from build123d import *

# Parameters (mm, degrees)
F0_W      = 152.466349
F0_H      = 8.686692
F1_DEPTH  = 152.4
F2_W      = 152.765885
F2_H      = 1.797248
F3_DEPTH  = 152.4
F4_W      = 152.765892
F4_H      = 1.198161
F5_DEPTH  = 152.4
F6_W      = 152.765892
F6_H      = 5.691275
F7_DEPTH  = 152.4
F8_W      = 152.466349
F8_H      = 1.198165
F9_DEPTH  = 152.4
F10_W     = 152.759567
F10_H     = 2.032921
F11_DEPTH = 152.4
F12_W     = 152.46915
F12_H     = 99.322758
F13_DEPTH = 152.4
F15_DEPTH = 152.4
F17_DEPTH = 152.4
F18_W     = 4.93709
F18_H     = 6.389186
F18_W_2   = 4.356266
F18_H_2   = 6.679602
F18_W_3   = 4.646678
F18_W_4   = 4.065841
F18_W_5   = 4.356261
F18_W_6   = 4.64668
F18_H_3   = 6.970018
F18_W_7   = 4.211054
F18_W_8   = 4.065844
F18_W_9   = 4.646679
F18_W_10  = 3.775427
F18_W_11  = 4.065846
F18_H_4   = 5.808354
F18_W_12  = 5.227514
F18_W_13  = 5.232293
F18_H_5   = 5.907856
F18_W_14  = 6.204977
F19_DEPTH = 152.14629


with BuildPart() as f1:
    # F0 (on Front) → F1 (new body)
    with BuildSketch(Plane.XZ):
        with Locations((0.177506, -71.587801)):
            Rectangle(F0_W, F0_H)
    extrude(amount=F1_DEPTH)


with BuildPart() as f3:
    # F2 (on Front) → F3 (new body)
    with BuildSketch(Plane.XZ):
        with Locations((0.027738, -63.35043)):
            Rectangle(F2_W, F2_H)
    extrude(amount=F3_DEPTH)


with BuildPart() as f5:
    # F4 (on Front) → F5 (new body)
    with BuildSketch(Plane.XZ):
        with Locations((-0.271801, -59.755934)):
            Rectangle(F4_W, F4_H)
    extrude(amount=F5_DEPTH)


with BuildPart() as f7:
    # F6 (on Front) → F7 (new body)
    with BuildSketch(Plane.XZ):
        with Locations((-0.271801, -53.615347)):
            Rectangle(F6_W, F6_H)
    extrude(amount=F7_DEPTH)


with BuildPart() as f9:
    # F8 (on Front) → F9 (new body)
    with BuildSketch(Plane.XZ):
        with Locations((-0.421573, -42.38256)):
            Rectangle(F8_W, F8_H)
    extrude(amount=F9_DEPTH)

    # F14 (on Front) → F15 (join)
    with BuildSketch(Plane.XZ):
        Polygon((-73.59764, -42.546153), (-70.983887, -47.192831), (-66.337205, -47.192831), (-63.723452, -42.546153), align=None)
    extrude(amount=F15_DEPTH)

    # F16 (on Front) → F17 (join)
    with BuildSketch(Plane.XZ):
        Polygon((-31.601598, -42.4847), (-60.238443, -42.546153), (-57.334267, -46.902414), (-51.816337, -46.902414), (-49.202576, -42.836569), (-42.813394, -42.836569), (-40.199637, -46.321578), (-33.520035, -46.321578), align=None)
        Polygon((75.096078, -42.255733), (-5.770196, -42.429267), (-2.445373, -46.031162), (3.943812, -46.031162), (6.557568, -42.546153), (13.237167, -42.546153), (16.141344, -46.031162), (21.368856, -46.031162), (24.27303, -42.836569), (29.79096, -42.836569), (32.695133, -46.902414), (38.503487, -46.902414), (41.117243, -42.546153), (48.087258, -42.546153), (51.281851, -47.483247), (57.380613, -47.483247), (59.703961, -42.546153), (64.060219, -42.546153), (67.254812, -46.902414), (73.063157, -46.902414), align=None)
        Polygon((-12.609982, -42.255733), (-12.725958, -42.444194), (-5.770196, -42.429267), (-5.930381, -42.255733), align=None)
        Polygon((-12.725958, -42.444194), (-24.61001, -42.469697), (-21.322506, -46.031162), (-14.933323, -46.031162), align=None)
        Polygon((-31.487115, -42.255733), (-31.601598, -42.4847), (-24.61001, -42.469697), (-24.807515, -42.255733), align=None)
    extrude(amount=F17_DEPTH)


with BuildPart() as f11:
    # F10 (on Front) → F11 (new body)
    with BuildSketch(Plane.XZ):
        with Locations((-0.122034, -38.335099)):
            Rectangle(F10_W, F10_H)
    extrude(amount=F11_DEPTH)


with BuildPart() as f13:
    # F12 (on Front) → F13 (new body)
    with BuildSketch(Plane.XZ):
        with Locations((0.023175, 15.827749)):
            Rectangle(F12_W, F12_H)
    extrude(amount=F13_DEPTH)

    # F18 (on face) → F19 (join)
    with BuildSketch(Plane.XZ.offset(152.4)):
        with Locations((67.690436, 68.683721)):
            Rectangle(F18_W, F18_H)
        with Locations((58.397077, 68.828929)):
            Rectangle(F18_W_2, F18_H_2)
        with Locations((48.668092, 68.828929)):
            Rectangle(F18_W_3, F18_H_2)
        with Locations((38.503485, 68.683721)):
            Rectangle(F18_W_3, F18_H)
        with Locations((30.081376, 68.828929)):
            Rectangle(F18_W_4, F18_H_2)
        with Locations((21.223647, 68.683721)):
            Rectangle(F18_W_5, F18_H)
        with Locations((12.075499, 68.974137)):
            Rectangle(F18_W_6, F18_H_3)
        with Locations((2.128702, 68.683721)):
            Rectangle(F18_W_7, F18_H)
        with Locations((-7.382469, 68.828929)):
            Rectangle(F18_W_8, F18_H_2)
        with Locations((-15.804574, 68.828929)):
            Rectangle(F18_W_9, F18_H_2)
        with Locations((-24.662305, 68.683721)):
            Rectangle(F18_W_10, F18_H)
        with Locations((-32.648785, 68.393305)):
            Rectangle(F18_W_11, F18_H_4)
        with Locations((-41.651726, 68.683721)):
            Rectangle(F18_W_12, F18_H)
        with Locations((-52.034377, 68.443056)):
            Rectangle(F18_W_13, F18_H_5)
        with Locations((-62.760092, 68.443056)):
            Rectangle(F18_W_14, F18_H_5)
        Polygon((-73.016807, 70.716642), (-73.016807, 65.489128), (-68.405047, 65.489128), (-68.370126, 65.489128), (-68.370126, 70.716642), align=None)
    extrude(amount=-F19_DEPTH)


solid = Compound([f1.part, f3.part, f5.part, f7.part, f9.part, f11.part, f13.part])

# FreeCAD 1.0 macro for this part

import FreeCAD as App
import Part
import Sketcher
from FreeCAD import Vector
Q = App.Units.Quantity


def add_polygon(sketch, points):
    """Adds a closed chain of lines whose ends are joined by coincident constraints."""
    first, n = sketch.GeometryCount, len(points)
    for a, b in zip(points, points[1:] + points[:1]):
        sketch.addGeometry(Part.LineSegment(App.Vector(*a, 0), App.Vector(*b, 0)), False)
    for i in range(n):
        sketch.addConstraint(Sketcher.Constraint("Coincident", first + i, 2, first + (i + 1) % n, 1))

doc = App.newDocument("Part")
body = doc.addObject("PartDesign::Body", "Body")

# Sketch on XZ plane
sketch1 = doc.addObject("Sketcher::SketchObject", "Sketch")
body.addObject(sketch1)
sketch1.AttachmentSupport = (doc.XZ_Plane, [""])
sketch1.MapMode = "FlatFace"
add_polygon(sketch1, [(-76.055668, -67.244455), (-76.055668, -75.931147), (76.41068, -75.931147), (76.41068, -67.244455)])  # lines 0-3
sketch1.addConstraint(Sketcher.Constraint("Vertical", 0))
sketch1.addConstraint(Sketcher.Constraint("Horizontal", 1))
sketch1.addConstraint(Sketcher.Constraint("Vertical", 2))
sketch1.addConstraint(Sketcher.Constraint("Horizontal", 3))
sketch1.addConstraint(Sketcher.Constraint("DistanceX", 1, 1, 1, 2, Q("152.466349 mm")))
sketch1.addConstraint(Sketcher.Constraint("DistanceY", 0, 2, 0, 1, Q("8.686692 mm")))
sketch1.addConstraint(Sketcher.Constraint("DistanceX", 0, 2, -1, 1, Q("76.055668 mm")))
sketch1.addConstraint(Sketcher.Constraint("DistanceY", 0, 2, -1, 1, Q("75.931147 mm")))
pad1 = doc.addObject("PartDesign::Pad", "Pad")
body.addObject(pad1)
pad1.Profile = sketch1
pad1.Length = Q("6 in")
body2 = doc.addObject("PartDesign::Body", "Body001")

# Sketch on XZ plane
sketch2 = doc.addObject("Sketcher::SketchObject", "Sketch001")
body2.addObject(sketch2)
sketch2.AttachmentSupport = (doc.getObject("XZ_Plane001"), [""])
sketch2.MapMode = "FlatFace"
add_polygon(sketch2, [(-76.355204, -62.451806), (-76.355204, -64.249054), (76.41068, -64.249054), (76.41068, -62.451806)])  # lines 0-3
sketch2.addConstraint(Sketcher.Constraint("Vertical", 0))
sketch2.addConstraint(Sketcher.Constraint("Horizontal", 1))
sketch2.addConstraint(Sketcher.Constraint("Vertical", 2))
sketch2.addConstraint(Sketcher.Constraint("Horizontal", 3))
sketch2.addConstraint(Sketcher.Constraint("DistanceY", 0, 2, 0, 1, Q("1.797248 mm")))
sketch2.addConstraint(Sketcher.Constraint("DistanceX", 1, 1, 1, 2, Q("152.765885 mm")))
sketch2.addConstraint(Sketcher.Constraint("DistanceX", -1, 1, 1, 2, Q("76.41068 mm")))
sketch2.addConstraint(Sketcher.Constraint("DistanceY", 0, 2, -1, 1, Q("64.249054 mm")))
pad2 = doc.addObject("PartDesign::Pad", "Pad001")
body2.addObject(pad2)
pad2.Profile = sketch2
pad2.Length = Q("6 in")
body3 = doc.addObject("PartDesign::Body", "Body002")

# Sketch on XZ plane
sketch3 = doc.addObject("Sketcher::SketchObject", "Sketch002")
body3.addObject(sketch3)
sketch3.AttachmentSupport = (doc.getObject("XZ_Plane002"), [""])
sketch3.MapMode = "FlatFace"
add_polygon(sketch3, [(-76.654747, -59.156853), (-76.654747, -60.355015), (76.111145, -60.355015), (76.111145, -59.156853)])  # lines 0-3
sketch3.addConstraint(Sketcher.Constraint("Vertical", 0))
sketch3.addConstraint(Sketcher.Constraint("Horizontal", 1))
sketch3.addConstraint(Sketcher.Constraint("Vertical", 2))
sketch3.addConstraint(Sketcher.Constraint("Horizontal", 3))
sketch3.addConstraint(Sketcher.Constraint("DistanceX", 1, 1, 1, 2, Q("152.765892 mm")))
sketch3.addConstraint(Sketcher.Constraint("DistanceY", 0, 2, 0, 1, Q("1.198161 mm")))
sketch3.addConstraint(Sketcher.Constraint("DistanceX", 0, 2, -1, 1, Q("76.654747 mm")))
sketch3.addConstraint(Sketcher.Constraint("DistanceY", 0, 2, -1, 1, Q("60.355015 mm")))
pad3 = doc.addObject("PartDesign::Pad", "Pad002")
body3.addObject(pad3)
pad3.Profile = sketch3
pad3.Length = Q("6 in")
body4 = doc.addObject("PartDesign::Body", "Body003")

# Sketch on XZ plane
sketch4 = doc.addObject("Sketcher::SketchObject", "Sketch003")
body4.addObject(sketch4)
sketch4.AttachmentSupport = (doc.getObject("XZ_Plane003"), [""])
sketch4.MapMode = "FlatFace"
add_polygon(sketch4, [(-76.654747, -50.769709), (-76.654747, -56.460985), (76.111145, -56.460985), (76.111145, -50.769709)])  # lines 0-3
sketch4.addConstraint(Sketcher.Constraint("Vertical", 0))
sketch4.addConstraint(Sketcher.Constraint("Horizontal", 1))
sketch4.addConstraint(Sketcher.Constraint("Vertical", 2))
sketch4.addConstraint(Sketcher.Constraint("Horizontal", 3))
sketch4.addConstraint(Sketcher.Constraint("DistanceX", 1, 1, 1, 2, Q("152.765892 mm")))
sketch4.addConstraint(Sketcher.Constraint("DistanceY", 0, 2, 0, 1, Q("5.691275 mm")))
sketch4.addConstraint(Sketcher.Constraint("DistanceY", 2, 2, -1, 1, Q("50.769709 mm")))
sketch4.addConstraint(Sketcher.Constraint("DistanceX", 0, 2, -1, 1, Q("76.654747 mm")))
pad4 = doc.addObject("PartDesign::Pad", "Pad003")
body4.addObject(pad4)
pad4.Profile = sketch4
pad4.Length = Q("6 in")
body5 = doc.addObject("PartDesign::Body", "Body004")

# Sketch on XZ plane
sketch5 = doc.addObject("Sketcher::SketchObject", "Sketch004")
body5.addObject(sketch5)
sketch5.AttachmentSupport = (doc.getObject("XZ_Plane004"), [""])
sketch5.MapMode = "FlatFace"
add_polygon(sketch5, [(-76.654747, -41.783477), (-76.654747, -42.981642), (75.811601, -42.981642), (75.811601, -41.783477)])  # lines 0-3
sketch5.addConstraint(Sketcher.Constraint("Vertical", 0))
sketch5.addConstraint(Sketcher.Constraint("Horizontal", 1))
sketch5.addConstraint(Sketcher.Constraint("Vertical", 2))
sketch5.addConstraint(Sketcher.Constraint("Horizontal", 3))
sketch5.addConstraint(Sketcher.Constraint("DistanceX", 1, 1, 1, 2, Q("152.466349 mm")))
sketch5.addConstraint(Sketcher.Constraint("DistanceX", -1, 1, 1, 2, Q("75.811601 mm")))
sketch5.addConstraint(Sketcher.Constraint("DistanceY", 0, 2, 0, 1, Q("1.198165 mm")))
sketch5.addConstraint(Sketcher.Constraint("DistanceY", 0, 2, -1, 1, Q("42.981642 mm")))
pad5 = doc.addObject("PartDesign::Pad", "Pad004")
body5.addObject(pad5)
pad5.Profile = sketch5
pad5.Length = Q("6 in")

# Sketch on XZ plane
sketch6 = doc.addObject("Sketcher::SketchObject", "Sketch005")
body5.addObject(sketch6)
sketch6.AttachmentSupport = (doc.getObject("XZ_Plane004"), [""])
sketch6.MapMode = "FlatFace"
add_polygon(sketch6, [(-73.59764, -42.546153), (-70.983887, -47.192831), (-66.337205, -47.192831), (-63.723452, -42.546153)])  # lines 0-3
sketch6.addConstraint(Sketcher.Constraint("Horizontal", 1))
sketch6.addConstraint(Sketcher.Constraint("Horizontal", 3))
sketch6.addConstraint(Sketcher.Constraint("Equal", 0, 2))
sketch6.addConstraint(Sketcher.Constraint("DistanceX", 1, 1, 1, 2, Q("4.646682 mm")))
sketch6.addConstraint(Sketcher.Constraint("DistanceX", 3, 2, 3, 1, Q("9.874188 mm")))
sketch6.addConstraint(Sketcher.Constraint("DistanceY", 0, 2, -1, 1, Q("47.192831 mm")))
sketch6.addConstraint(Sketcher.Constraint("DistanceX", 3, 2, -1, 1, Q("73.59764 mm")))
sketch6.addConstraint(Sketcher.Constraint("DistanceY", 1, 2, 2, 2, Q("4.646678 mm")))
pad6 = doc.addObject("PartDesign::Pad", "Pad005")
body5.addObject(pad6)
pad6.Profile = sketch6
pad6.Length = Q("6 in")

# Sketch on XZ plane
sketch7 = doc.addObject("Sketcher::SketchObject", "Sketch006")
body5.addObject(sketch7)
sketch7.AttachmentSupport = (doc.getObject("XZ_Plane004"), [""])
sketch7.MapMode = "FlatFace"
add_polygon(sketch7, [(-31.601598, -42.4847), (-60.238443, -42.546153), (-57.334267, -46.902414), (-51.816337, -46.902414), (-49.202576, -42.836569), (-42.813394, -42.836569), (-40.199637, -46.321578), (-33.520035, -46.321578)])  # lines 0-7
add_polygon(sketch7, [(75.096078, -42.255733), (-5.770196, -42.429267), (-2.445373, -46.031162), (3.943812, -46.031162), (6.557568, -42.546153), (13.237167, -42.546153), (16.141344, -46.031162), (21.368856, -46.031162), (24.27303, -42.836569), (29.79096, -42.836569), (32.695133, -46.902414), (38.503487, -46.902414), (41.117243, -42.546153), (48.087258, -42.546153), (51.281851, -47.483247), (57.380613, -47.483247), (59.703961, -42.546153), (64.060219, -42.546153), (67.254812, -46.902414), (73.063157, -46.902414)])  # lines 8-27
add_polygon(sketch7, [(-12.609982, -42.255733), (-12.725958, -42.444194), (-5.770196, -42.429267), (-5.930381, -42.255733)])  # lines 28-31
add_polygon(sketch7, [(-12.725958, -42.444194), (-24.61001, -42.469697), (-21.322506, -46.031162), (-14.933323, -46.031162)])  # lines 32-35
add_polygon(sketch7, [(-31.487115, -42.255733), (-31.601598, -42.4847), (-24.61001, -42.469697), (-24.807515, -42.255733)])  # lines 36-39
sketch7.addConstraint(Sketcher.Constraint("Horizontal", 2))
sketch7.addConstraint(Sketcher.Constraint("Horizontal", 4))
sketch7.addConstraint(Sketcher.Constraint("Horizontal", 6))
sketch7.addConstraint(Sketcher.Constraint("Horizontal", 10))
sketch7.addConstraint(Sketcher.Constraint("Horizontal", 12))
sketch7.addConstraint(Sketcher.Constraint("Horizontal", 14))
sketch7.addConstraint(Sketcher.Constraint("Horizontal", 16))
sketch7.addConstraint(Sketcher.Constraint("Horizontal", 18))
sketch7.addConstraint(Sketcher.Constraint("Horizontal", 20))
sketch7.addConstraint(Sketcher.Constraint("Horizontal", 22))
sketch7.addConstraint(Sketcher.Constraint("Horizontal", 24))
sketch7.addConstraint(Sketcher.Constraint("Horizontal", 26))
sketch7.addConstraint(Sketcher.Constraint("Horizontal", 31))
sketch7.addConstraint(Sketcher.Constraint("Horizontal", 34))
sketch7.addConstraint(Sketcher.Constraint("Horizontal", 39))
sketch7.addConstraint(Sketcher.Constraint("Coincident", 29, 2, 8, 2))
sketch7.addConstraint(Sketcher.Constraint("Coincident", 35, 2, 28, 2))
sketch7.addConstraint(Sketcher.Constraint("Coincident", 36, 2, 7, 2))
sketch7.addConstraint(Sketcher.Constraint("Coincident", 37, 2, 32, 2))
sketch7.addConstraint(Sketcher.Constraint("DistanceX", 12, 1, 12, 2, Q("6.679599 mm")))
sketch7.addConstraint(Sketcher.Constraint("DistanceX", 31, 2, 31, 1, Q("6.679601 mm")))
sketch7.addConstraint(Sketcher.Constraint("DistanceX", 39, 2, 39, 1, Q("6.6796 mm")))
sketch7.addConstraint(Sketcher.Constraint("DistanceX", 2, 1, 2, 2, Q("5.51793 mm")))
sketch7.addConstraint(Sketcher.Constraint("DistanceX", 4, 1, 4, 2, Q("6.389182 mm")))
sketch7.addConstraint(Sketcher.Constraint("DistanceX", 16, 1, 16, 2, Q("5.51793 mm")))
sketch7.addConstraint(Sketcher.Constraint("DistanceX", 22, 1, 22, 2, Q("6.098762 mm")))
sketch7.addConstraint(Sketcher.Constraint("DistanceX", 24, 1, 24, 2, Q("4.356258 mm")))
sketch7.addConstraint(Sketcher.Constraint("DistanceY", 7, 2, -1, 1, Q("42.4847 mm")))
sketch7.addConstraint(Sketcher.Constraint("DistanceX", 2, 2, 5, 2, Q("11.6167 mm")))
sketch7.addConstraint(Sketcher.Constraint("DistanceX", 2, 2, 6, 2, Q("18.296302 mm")))
sketch7.addConstraint(Sketcher.Constraint("DistanceX", 7, 2, 8, 2, Q("25.831402 mm")))
sketch7.addConstraint(Sketcher.Constraint("DistanceX", 4, 2, 8, 2, Q("37.043198 mm")))
sketch7.addConstraint(Sketcher.Constraint("DistanceY", 4, 2, 8, 2, Q("0.407302 mm")))
sketch7.addConstraint(Sketcher.Constraint("DistanceX", 16, 2, 20, 2, Q("18.296298 mm")))
sketch7.addConstraint(Sketcher.Constraint("DistanceX", 22, 2, 25, 2, Q("9.874199 mm")))
sketch7.addConstraint(Sketcher.Constraint("Distance", 0, Q("28.636911 mm")))
sketch7.addConstraint(Sketcher.Constraint("Distance", 5, Q("4.356261 mm")))
sketch7.addConstraint(Sketcher.Constraint("Distance", 7, Q("4.289759 mm")))
sketch7.addConstraint(Sketcher.Constraint("Distance", 8, Q("80.86646 mm")))
sketch7.addConstraint(Sketcher.Constraint("Distance", 11, Q("4.356261 mm")))
sketch7.addConstraint(Sketcher.Constraint("Distance", 17, Q("4.99653 mm")))
sketch7.addConstraint(Sketcher.Constraint("Distance", 19, Q("5.080229 mm")))
sketch7.addConstraint(Sketcher.Constraint("Distance", 23, Q("5.45645 mm")))
sketch7.addConstraint(Sketcher.Constraint("Distance", 29, Q("6.955778 mm")))
sketch7.addConstraint(Sketcher.Constraint("Distance", 32, Q("11.884079 mm")))
sketch7.addConstraint(Sketcher.Constraint("DistanceX", 10, 1, 10, 2, Q("6.389185 mm")))
sketch7.addConstraint(Sketcher.Constraint("DistanceX", 14, 1, 14, 2, Q("5.227512 mm")))
sketch7.addConstraint(Sketcher.Constraint("DistanceX", 18, 1, 18, 2, Q("5.808354 mm")))
sketch7.addConstraint(Sketcher.Constraint("DistanceX", 20, 1, 20, 2, Q("6.970015 mm")))
sketch7.addConstraint(Sketcher.Constraint("DistanceX", 26, 1, 26, 2, Q("5.808345 mm")))
sketch7.addConstraint(Sketcher.Constraint("DistanceX", 34, 1, 34, 2, Q("6.389183 mm")))
sketch7.addConstraint(Sketcher.Constraint("DistanceY", 3, 2, -1, 1, Q("42.836569 mm")))
sketch7.addConstraint(Sketcher.Constraint("DistanceX", -1, 1, 10, 2, Q("3.943812 mm")))
sketch7.addConstraint(Sketcher.Constraint("DistanceX", -1, 1, 15, 2, Q("24.27303 mm")))
sketch7.addConstraint(Sketcher.Constraint("DistanceY", 15, 2, -1, 1, Q("42.836569 mm")))
sketch7.addConstraint(Sketcher.Constraint("DistanceX", -1, 1, 21, 2, Q("51.281851 mm")))
sketch7.addConstraint(Sketcher.Constraint("DistanceX", -1, 1, 23, 2, Q("59.703961 mm")))
sketch7.addConstraint(Sketcher.Constraint("DistanceX", -1, 1, 27, 2, Q("75.096078 mm")))
sketch7.addConstraint(Sketcher.Constraint("DistanceX", 30, 2, -1, 1, Q("5.930381 mm")))
sketch7.addConstraint(Sketcher.Constraint("DistanceY", 1, 2, 0, 2, Q("4.356261 mm")))
sketch7.addConstraint(Sketcher.Constraint("DistanceY", 10, 2, 11, 2, Q("3.485009 mm")))
sketch7.addConstraint(Sketcher.Constraint("DistanceY", 13, 2, 12, 2, Q("3.485009 mm")))
sketch7.addConstraint(Sketcher.Constraint("DistanceX", 8, 2, 13, 2, Q("21.91154 mm")))
sketch7.addConstraint(Sketcher.Constraint("DistanceY", 17, 2, 14, 2, Q("0.871252 mm")))
sketch7.addConstraint(Sketcher.Constraint("DistanceX", 13, 2, 17, 2, Q("16.553789 mm")))
sketch7.addConstraint(Sketcher.Constraint("DistanceY", 21, 2, 16, 2, Q("4.646678 mm")))
sketch7.addConstraint(Sketcher.Constraint("DistanceY", 25, 2, 24, 2, Q("4.356261 mm")))
sketch7.addConstraint(Sketcher.Constraint("DistanceY", 26, 2, 27, 2, Q("4.646681 mm")))
sketch7.addConstraint(Sketcher.Constraint("DistanceY", 11, 2, 28, 2, Q("0.101959 mm")))
sketch7.addConstraint(Sketcher.Constraint("DistanceY", 9, 2, 30, 2, Q("3.775429 mm")))
sketch7.addConstraint(Sketcher.Constraint("DistanceY", 6, 2, 32, 2, Q("3.851881 mm")))
sketch7.addConstraint(Sketcher.Constraint("DistanceY", 33, 2, 31, 2, Q("3.775429 mm")))
sketch7.addConstraint(Sketcher.Constraint("DistanceX", 7, 2, 33, 2, Q("10.279092 mm")))
sketch7.addConstraint(Sketcher.Constraint("DistanceX", 38, 2, 33, 2, Q("3.485009 mm")))
sketch7.addConstraint(Sketcher.Constraint("DistanceY", 33, 2, 38, 2, Q("3.775429 mm")))
sketch7.addConstraint(Sketcher.Constraint("Distance", 3, Q("4.833512 mm")))
pad7 = doc.addObject("PartDesign::Pad", "Pad006")
body5.addObject(pad7)
pad7.Profile = sketch7
pad7.Length = Q("6 in")
body6 = doc.addObject("PartDesign::Body", "Body005")

# Sketch on XZ plane
sketch8 = doc.addObject("Sketcher::SketchObject", "Sketch007")
body6.addObject(sketch8)
sketch8.AttachmentSupport = (doc.getObject("XZ_Plane005"), [""])
sketch8.MapMode = "FlatFace"
add_polygon(sketch8, [(-76.501818, -37.318638), (-76.501818, -39.35156), (76.25775, -39.35156), (76.25775, -37.318638)])  # lines 0-3
sketch8.addConstraint(Sketcher.Constraint("Vertical", 0))
sketch8.addConstraint(Sketcher.Constraint("Horizontal", 1))
sketch8.addConstraint(Sketcher.Constraint("Vertical", 2))
sketch8.addConstraint(Sketcher.Constraint("Horizontal", 3))
sketch8.addConstraint(Sketcher.Constraint("DistanceY", 0, 2, 0, 1, Q("2.032921 mm")))
sketch8.addConstraint(Sketcher.Constraint("DistanceX", 1, 1, 1, 2, Q("152.759567 mm")))
sketch8.addConstraint(Sketcher.Constraint("DistanceY", 0, 2, -1, 1, Q("39.35156 mm")))
sketch8.addConstraint(Sketcher.Constraint("DistanceX", -1, 1, 1, 2, Q("76.25775 mm")))
pad8 = doc.addObject("PartDesign::Pad", "Pad007")
body6.addObject(pad8)
pad8.Profile = sketch8
pad8.Length = Q("6 in")
body7 = doc.addObject("PartDesign::Body", "Body006")

# Sketch on XZ plane
sketch9 = doc.addObject("Sketcher::SketchObject", "Sketch008")
body7.addObject(sketch9)
sketch9.AttachmentSupport = (doc.getObject("XZ_Plane006"), [""])
sketch9.MapMode = "FlatFace"
add_polygon(sketch9, [(-76.2114, 65.489128), (-76.2114, -33.83363), (76.25775, -33.83363), (76.25775, 65.489128)])  # lines 0-3
sketch9.addConstraint(Sketcher.Constraint("Vertical", 0))
sketch9.addConstraint(Sketcher.Constraint("Horizontal", 1))
sketch9.addConstraint(Sketcher.Constraint("Vertical", 2))
sketch9.addConstraint(Sketcher.Constraint("Horizontal", 3))
sketch9.addConstraint(Sketcher.Constraint("DistanceX", 1, 1, 1, 2, Q("152.46915 mm")))
sketch9.addConstraint(Sketcher.Constraint("DistanceX", 0, 2, -1, 1, Q("76.2114 mm")))
sketch9.addConstraint(Sketcher.Constraint("DistanceY", 0, 2, 0, 1, Q("99.322758 mm")))
sketch9.addConstraint(Sketcher.Constraint("DistanceY", 0, 2, -1, 1, Q("33.83363 mm")))
pad9 = doc.addObject("PartDesign::Pad", "Pad008")
body7.addObject(pad9)
pad9.Profile = sketch9
pad9.Length = Q("6 in")

# Sketch on XZ plane
sketch10 = doc.addObject("Sketcher::SketchObject", "Sketch009")
body7.addObject(sketch10)
sketch10.AttachmentSupport = (doc.getObject("XZ_Plane006"), [""])
sketch10.MapMode = "FlatFace"
sketch10.AttachmentOffset = App.Placement(Vector(0, 0, 6 * 25.4), App.Rotation())
add_polygon(sketch10, [(65.221891, 71.878314), (65.221891, 65.489128), (70.158981, 65.489128), (70.158981, 71.878314)])  # lines 0-3
add_polygon(sketch10, [(56.218944, 72.16873), (56.218944, 65.489128), (60.57521, 65.489128), (60.57521, 72.16873)])  # lines 4-7
add_polygon(sketch10, [(46.344753, 72.16873), (46.344753, 65.489128), (50.991431, 65.489128), (50.991431, 72.16873)])  # lines 8-11
add_polygon(sketch10, [(36.180146, 71.878314), (36.180146, 65.489128), (40.826824, 65.489128), (40.826824, 71.878314)])  # lines 12-15
add_polygon(sketch10, [(28.048455, 72.16873), (28.048455, 65.489128), (32.114297, 65.489128), (32.114297, 72.16873)])  # lines 16-19
add_polygon(sketch10, [(19.045517, 71.878314), (19.045517, 65.489128), (23.401778, 65.489128), (23.401778, 71.878314)])  # lines 20-23
add_polygon(sketch10, [(9.752159, 72.459146), (9.752159, 65.489128), (14.398839, 65.489128), (14.398839, 72.459146)])  # lines 24-27
add_polygon(sketch10, [(0.023175, 71.878314), (0.023175, 65.489128), (4.234229, 65.489128), (4.234229, 71.878314)])  # lines 28-31
add_polygon(sketch10, [(-9.415391, 72.16873), (-9.415391, 65.489128), (-5.349547, 65.489128), (-5.349547, 72.16873)])  # lines 32-35
add_polygon(sketch10, [(-18.127913, 72.16873), (-18.127913, 65.489128), (-13.481234, 65.489128), (-13.481234, 72.16873)])  # lines 36-39
add_polygon(sketch10, [(-26.550019, 71.878314), (-26.550019, 65.489128), (-22.774591, 65.489128), (-22.774591, 71.878314)])  # lines 40-43
add_polygon(sketch10, [(-34.681708, 71.297482), (-34.681708, 65.489128), (-30.615862, 65.489128), (-30.615862, 71.297482)])  # lines 44-47
add_polygon(sketch10, [(-44.265483, 71.878314), (-44.265483, 65.489128), (-39.037969, 65.489128), (-39.037969, 71.878314)])  # lines 48-51
add_polygon(sketch10, [(-54.650523, 71.396984), (-54.650523, 65.489128), (-49.41823, 65.489128), (-49.41823, 71.396984)])  # lines 52-55
add_polygon(sketch10, [(-65.862581, 71.396984), (-65.862581, 65.489128), (-59.657604, 65.489128), (-59.657604, 71.396984)])  # lines 56-59
add_polygon(sketch10, [(-73.016807, 70.716642), (-73.016807, 65.489128), (-68.370126, 65.489128), (-68.370126, 70.716642)])  # lines 60-63
sketch10.addConstraint(Sketcher.Constraint("Vertical", 0))
sketch10.addConstraint(Sketcher.Constraint("Horizontal", 1))
sketch10.addConstraint(Sketcher.Constraint("Vertical", 2))
sketch10.addConstraint(Sketcher.Constraint("Horizontal", 3))
sketch10.addConstraint(Sketcher.Constraint("Vertical", 4))
sketch10.addConstraint(Sketcher.Constraint("Horizontal", 5))
sketch10.addConstraint(Sketcher.Constraint("Vertical", 6))
sketch10.addConstraint(Sketcher.Constraint("Horizontal", 7))
sketch10.addConstraint(Sketcher.Constraint("Vertical", 8))
sketch10.addConstraint(Sketcher.Constraint("Horizontal", 9))
sketch10.addConstraint(Sketcher.Constraint("Vertical", 10))
sketch10.addConstraint(Sketcher.Constraint("Horizontal", 11))
sketch10.addConstraint(Sketcher.Constraint("Vertical", 12))
sketch10.addConstraint(Sketcher.Constraint("Horizontal", 13))
sketch10.addConstraint(Sketcher.Constraint("Vertical", 14))
sketch10.addConstraint(Sketcher.Constraint("Horizontal", 15))
sketch10.addConstraint(Sketcher.Constraint("Vertical", 16))
sketch10.addConstraint(Sketcher.Constraint("Horizontal", 17))
sketch10.addConstraint(Sketcher.Constraint("Vertical", 18))
sketch10.addConstraint(Sketcher.Constraint("Horizontal", 19))
sketch10.addConstraint(Sketcher.Constraint("Vertical", 20))
sketch10.addConstraint(Sketcher.Constraint("Horizontal", 21))
sketch10.addConstraint(Sketcher.Constraint("Vertical", 22))
sketch10.addConstraint(Sketcher.Constraint("Horizontal", 23))
sketch10.addConstraint(Sketcher.Constraint("Vertical", 24))
sketch10.addConstraint(Sketcher.Constraint("Horizontal", 25))
sketch10.addConstraint(Sketcher.Constraint("Vertical", 26))
sketch10.addConstraint(Sketcher.Constraint("Horizontal", 27))
sketch10.addConstraint(Sketcher.Constraint("Vertical", 28))
sketch10.addConstraint(Sketcher.Constraint("Horizontal", 29))
sketch10.addConstraint(Sketcher.Constraint("Vertical", 30))
sketch10.addConstraint(Sketcher.Constraint("Horizontal", 31))
sketch10.addConstraint(Sketcher.Constraint("Vertical", 32))
sketch10.addConstraint(Sketcher.Constraint("Horizontal", 33))
sketch10.addConstraint(Sketcher.Constraint("Vertical", 34))
sketch10.addConstraint(Sketcher.Constraint("Horizontal", 35))
sketch10.addConstraint(Sketcher.Constraint("Vertical", 36))
sketch10.addConstraint(Sketcher.Constraint("Horizontal", 37))
sketch10.addConstraint(Sketcher.Constraint("Vertical", 38))
sketch10.addConstraint(Sketcher.Constraint("Horizontal", 39))
sketch10.addConstraint(Sketcher.Constraint("Vertical", 40))
sketch10.addConstraint(Sketcher.Constraint("Horizontal", 41))
sketch10.addConstraint(Sketcher.Constraint("Vertical", 42))
sketch10.addConstraint(Sketcher.Constraint("Horizontal", 43))
sketch10.addConstraint(Sketcher.Constraint("Vertical", 44))
sketch10.addConstraint(Sketcher.Constraint("Horizontal", 45))
sketch10.addConstraint(Sketcher.Constraint("Vertical", 46))
sketch10.addConstraint(Sketcher.Constraint("Horizontal", 47))
sketch10.addConstraint(Sketcher.Constraint("Vertical", 48))
sketch10.addConstraint(Sketcher.Constraint("Horizontal", 49))
sketch10.addConstraint(Sketcher.Constraint("Vertical", 50))
sketch10.addConstraint(Sketcher.Constraint("Horizontal", 51))
sketch10.addConstraint(Sketcher.Constraint("Vertical", 52))
sketch10.addConstraint(Sketcher.Constraint("Horizontal", 53))
sketch10.addConstraint(Sketcher.Constraint("Vertical", 54))
sketch10.addConstraint(Sketcher.Constraint("Horizontal", 55))
sketch10.addConstraint(Sketcher.Constraint("Vertical", 56))
sketch10.addConstraint(Sketcher.Constraint("Horizontal", 57))
sketch10.addConstraint(Sketcher.Constraint("Vertical", 58))
sketch10.addConstraint(Sketcher.Constraint("Horizontal", 59))
sketch10.addConstraint(Sketcher.Constraint("Vertical", 60))
sketch10.addConstraint(Sketcher.Constraint("Horizontal", 61))
sketch10.addConstraint(Sketcher.Constraint("Vertical", 62))
sketch10.addConstraint(Sketcher.Constraint("Horizontal", 63))
sketch10.addConstraint(Sketcher.Constraint("Horizontal", 1, 2, 4, 2))
sketch10.addConstraint(Sketcher.Constraint("Horizontal", 5, 2, 8, 2))
sketch10.addConstraint(Sketcher.Constraint("Horizontal", 7, 2, 10, 2))
sketch10.addConstraint(Sketcher.Constraint("Horizontal", 9, 2, 12, 2))
sketch10.addConstraint(Sketcher.Constraint("Horizontal", 3, 2, 14, 2))
sketch10.addConstraint(Sketcher.Constraint("Horizontal", 13, 2, 16, 2))
sketch10.addConstraint(Sketcher.Constraint("Horizontal", 11, 2, 18, 2))
sketch10.addConstraint(Sketcher.Constraint("Horizontal", 17, 2, 20, 2))
sketch10.addConstraint(Sketcher.Constraint("Horizontal", 15, 2, 22, 2))
sketch10.addConstraint(Sketcher.Constraint("Horizontal", 21, 2, 24, 2))
sketch10.addConstraint(Sketcher.Constraint("Horizontal", 25, 2, 28, 2))
sketch10.addConstraint(Sketcher.Constraint("Horizontal", 23, 2, 30, 2))
sketch10.addConstraint(Sketcher.Constraint("Horizontal", 29, 2, 32, 2))
sketch10.addConstraint(Sketcher.Constraint("Horizontal", 19, 2, 34, 2))
sketch10.addConstraint(Sketcher.Constraint("Horizontal", 33, 2, 36, 2))
sketch10.addConstraint(Sketcher.Constraint("Horizontal", 35, 2, 38, 2))
sketch10.addConstraint(Sketcher.Constraint("Horizontal", 37, 2, 40, 2))
sketch10.addConstraint(Sketcher.Constraint("Horizontal", 31, 2, 42, 2))
sketch10.addConstraint(Sketcher.Constraint("Horizontal", 41, 2, 44, 2))
sketch10.addConstraint(Sketcher.Constraint("Horizontal", 45, 2, 48, 2))
sketch10.addConstraint(Sketcher.Constraint("Horizontal", 43, 2, 50, 2))
sketch10.addConstraint(Sketcher.Constraint("Horizontal", 49, 2, 52, 2))
sketch10.addConstraint(Sketcher.Constraint("Horizontal", 53, 2, 56, 2))
sketch10.addConstraint(Sketcher.Constraint("Horizontal", 55, 2, 58, 2))
sketch10.addConstraint(Sketcher.Constraint("Horizontal", 57, 2, 60, 2))
sketch10.addConstraint(Sketcher.Constraint("Equal", 11, 13))
sketch10.addConstraint(Sketcher.Constraint("Equal", 15, 25))
sketch10.addConstraint(Sketcher.Constraint("Equal", 27, 37))
sketch10.addConstraint(Sketcher.Constraint("Equal", 27, 61))
sketch10.addConstraint(Sketcher.Constraint("Equal", 51, 60))
sketch10.addConstraint(Sketcher.Constraint("DistanceX", 1, 1, 1, 2, Q("4.93709 mm")))
sketch10.addConstraint(Sketcher.Constraint("DistanceX", 9, 1, 9, 2, Q("4.646678 mm")))
sketch10.addConstraint(Sketcher.Constraint("DistanceX", 17, 1, 17, 2, Q("4.065841 mm")))
sketch10.addConstraint(Sketcher.Constraint("DistanceX", 21, 1, 21, 2, Q("4.356261 mm")))
sketch10.addConstraint(Sketcher.Constraint("DistanceY", 24, 2, 24, 1, Q("6.970018 mm")))
sketch10.addConstraint(Sketcher.Constraint("DistanceX", 5, 1, 5, 2, Q("4.356266 mm")))
sketch10.addConstraint(Sketcher.Constraint("DistanceX", 29, 1, 29, 2, Q("4.211054 mm")))
sketch10.addConstraint(Sketcher.Constraint("DistanceX", 33, 1, 33, 2, Q("4.065844 mm")))
sketch10.addConstraint(Sketcher.Constraint("DistanceX", 41, 1, 41, 2, Q("3.775427 mm")))
sketch10.addConstraint(Sketcher.Constraint("DistanceX", 45, 1, 45, 2, Q("4.065846 mm")))
sketch10.addConstraint(Sketcher.Constraint("DistanceX", 49, 1, 49, 2, Q("5.227514 mm")))
sketch10.addConstraint(Sketcher.Constraint("DistanceX", 53, 1, 53, 2, Q("5.232293 mm")))
sketch10.addConstraint(Sketcher.Constraint("DistanceX", 57, 1, 57, 2, Q("6.204977 mm")))
sketch10.addConstraint(Sketcher.Constraint("DistanceY", 0, 2, 0, 1, Q("6.389186 mm")))
sketch10.addConstraint(Sketcher.Constraint("DistanceY", 4, 2, 4, 1, Q("6.679602 mm")))
sketch10.addConstraint(Sketcher.Constraint("DistanceY", 44, 2, 44, 1, Q("5.808354 mm")))
sketch10.addConstraint(Sketcher.Constraint("DistanceY", 52, 2, 52, 1, Q("5.907856 mm")))
sketch10.addConstraint(Sketcher.Constraint("DistanceX", -1, 1, 0, 2, Q("65.221891 mm")))
sketch10.addConstraint(Sketcher.Constraint("DistanceX", -1, 1, 5, 2, Q("60.57521 mm")))
sketch10.addConstraint(Sketcher.Constraint("DistanceY", -1, 1, 6, 2, Q("72.16873 mm")))
sketch10.addConstraint(Sketcher.Constraint("DistanceX", -1, 1, 9, 2, Q("50.991431 mm")))
sketch10.addConstraint(Sketcher.Constraint("DistanceX", -1, 1, 24, 2, Q("9.752159 mm")))
sketch10.addConstraint(Sketcher.Constraint("DistanceX", -1, 1, 29, 2, Q("4.234229 mm")))
sketch10.addConstraint(Sketcher.Constraint("DistanceX", 32, 2, -1, 1, Q("9.415391 mm")))
sketch10.addConstraint(Sketcher.Constraint("DistanceX", 40, 2, -1, 1, Q("26.550019 mm")))
sketch10.addConstraint(Sketcher.Constraint("DistanceX", 45, 2, -1, 1, Q("30.615862 mm")))
sketch10.addConstraint(Sketcher.Constraint("DistanceX", 49, 2, -1, 1, Q("39.037969 mm")))
sketch10.addConstraint(Sketcher.Constraint("DistanceX", 53, 2, -1, 1, Q("49.41823 mm")))
sketch10.addConstraint(Sketcher.Constraint("DistanceX", 56, 2, -1, 1, Q("65.862581 mm")))
sketch10.addConstraint(Sketcher.Constraint("DistanceX", -1, 1, 12, 2, Q("36.180146 mm")))
sketch10.addConstraint(Sketcher.Constraint("DistanceX", -1, 1, 16, 2, Q("28.048455 mm")))
sketch10.addConstraint(Sketcher.Constraint("DistanceX", -1, 1, 20, 2, Q("19.045517 mm")))
sketch10.addConstraint(Sketcher.Constraint("DistanceX", 36, 2, -1, 1, Q("18.127913 mm")))
sketch10.addConstraint(Sketcher.Constraint("DistanceX", 60, 2, -1, 1, Q("73.016807 mm")))
pad10 = doc.addObject("PartDesign::Pad", "Pad009")
body7.addObject(pad10)
pad10.Profile = sketch10
pad10.Length = 152.14629
pad10.Reversed = True

doc.recompute()
